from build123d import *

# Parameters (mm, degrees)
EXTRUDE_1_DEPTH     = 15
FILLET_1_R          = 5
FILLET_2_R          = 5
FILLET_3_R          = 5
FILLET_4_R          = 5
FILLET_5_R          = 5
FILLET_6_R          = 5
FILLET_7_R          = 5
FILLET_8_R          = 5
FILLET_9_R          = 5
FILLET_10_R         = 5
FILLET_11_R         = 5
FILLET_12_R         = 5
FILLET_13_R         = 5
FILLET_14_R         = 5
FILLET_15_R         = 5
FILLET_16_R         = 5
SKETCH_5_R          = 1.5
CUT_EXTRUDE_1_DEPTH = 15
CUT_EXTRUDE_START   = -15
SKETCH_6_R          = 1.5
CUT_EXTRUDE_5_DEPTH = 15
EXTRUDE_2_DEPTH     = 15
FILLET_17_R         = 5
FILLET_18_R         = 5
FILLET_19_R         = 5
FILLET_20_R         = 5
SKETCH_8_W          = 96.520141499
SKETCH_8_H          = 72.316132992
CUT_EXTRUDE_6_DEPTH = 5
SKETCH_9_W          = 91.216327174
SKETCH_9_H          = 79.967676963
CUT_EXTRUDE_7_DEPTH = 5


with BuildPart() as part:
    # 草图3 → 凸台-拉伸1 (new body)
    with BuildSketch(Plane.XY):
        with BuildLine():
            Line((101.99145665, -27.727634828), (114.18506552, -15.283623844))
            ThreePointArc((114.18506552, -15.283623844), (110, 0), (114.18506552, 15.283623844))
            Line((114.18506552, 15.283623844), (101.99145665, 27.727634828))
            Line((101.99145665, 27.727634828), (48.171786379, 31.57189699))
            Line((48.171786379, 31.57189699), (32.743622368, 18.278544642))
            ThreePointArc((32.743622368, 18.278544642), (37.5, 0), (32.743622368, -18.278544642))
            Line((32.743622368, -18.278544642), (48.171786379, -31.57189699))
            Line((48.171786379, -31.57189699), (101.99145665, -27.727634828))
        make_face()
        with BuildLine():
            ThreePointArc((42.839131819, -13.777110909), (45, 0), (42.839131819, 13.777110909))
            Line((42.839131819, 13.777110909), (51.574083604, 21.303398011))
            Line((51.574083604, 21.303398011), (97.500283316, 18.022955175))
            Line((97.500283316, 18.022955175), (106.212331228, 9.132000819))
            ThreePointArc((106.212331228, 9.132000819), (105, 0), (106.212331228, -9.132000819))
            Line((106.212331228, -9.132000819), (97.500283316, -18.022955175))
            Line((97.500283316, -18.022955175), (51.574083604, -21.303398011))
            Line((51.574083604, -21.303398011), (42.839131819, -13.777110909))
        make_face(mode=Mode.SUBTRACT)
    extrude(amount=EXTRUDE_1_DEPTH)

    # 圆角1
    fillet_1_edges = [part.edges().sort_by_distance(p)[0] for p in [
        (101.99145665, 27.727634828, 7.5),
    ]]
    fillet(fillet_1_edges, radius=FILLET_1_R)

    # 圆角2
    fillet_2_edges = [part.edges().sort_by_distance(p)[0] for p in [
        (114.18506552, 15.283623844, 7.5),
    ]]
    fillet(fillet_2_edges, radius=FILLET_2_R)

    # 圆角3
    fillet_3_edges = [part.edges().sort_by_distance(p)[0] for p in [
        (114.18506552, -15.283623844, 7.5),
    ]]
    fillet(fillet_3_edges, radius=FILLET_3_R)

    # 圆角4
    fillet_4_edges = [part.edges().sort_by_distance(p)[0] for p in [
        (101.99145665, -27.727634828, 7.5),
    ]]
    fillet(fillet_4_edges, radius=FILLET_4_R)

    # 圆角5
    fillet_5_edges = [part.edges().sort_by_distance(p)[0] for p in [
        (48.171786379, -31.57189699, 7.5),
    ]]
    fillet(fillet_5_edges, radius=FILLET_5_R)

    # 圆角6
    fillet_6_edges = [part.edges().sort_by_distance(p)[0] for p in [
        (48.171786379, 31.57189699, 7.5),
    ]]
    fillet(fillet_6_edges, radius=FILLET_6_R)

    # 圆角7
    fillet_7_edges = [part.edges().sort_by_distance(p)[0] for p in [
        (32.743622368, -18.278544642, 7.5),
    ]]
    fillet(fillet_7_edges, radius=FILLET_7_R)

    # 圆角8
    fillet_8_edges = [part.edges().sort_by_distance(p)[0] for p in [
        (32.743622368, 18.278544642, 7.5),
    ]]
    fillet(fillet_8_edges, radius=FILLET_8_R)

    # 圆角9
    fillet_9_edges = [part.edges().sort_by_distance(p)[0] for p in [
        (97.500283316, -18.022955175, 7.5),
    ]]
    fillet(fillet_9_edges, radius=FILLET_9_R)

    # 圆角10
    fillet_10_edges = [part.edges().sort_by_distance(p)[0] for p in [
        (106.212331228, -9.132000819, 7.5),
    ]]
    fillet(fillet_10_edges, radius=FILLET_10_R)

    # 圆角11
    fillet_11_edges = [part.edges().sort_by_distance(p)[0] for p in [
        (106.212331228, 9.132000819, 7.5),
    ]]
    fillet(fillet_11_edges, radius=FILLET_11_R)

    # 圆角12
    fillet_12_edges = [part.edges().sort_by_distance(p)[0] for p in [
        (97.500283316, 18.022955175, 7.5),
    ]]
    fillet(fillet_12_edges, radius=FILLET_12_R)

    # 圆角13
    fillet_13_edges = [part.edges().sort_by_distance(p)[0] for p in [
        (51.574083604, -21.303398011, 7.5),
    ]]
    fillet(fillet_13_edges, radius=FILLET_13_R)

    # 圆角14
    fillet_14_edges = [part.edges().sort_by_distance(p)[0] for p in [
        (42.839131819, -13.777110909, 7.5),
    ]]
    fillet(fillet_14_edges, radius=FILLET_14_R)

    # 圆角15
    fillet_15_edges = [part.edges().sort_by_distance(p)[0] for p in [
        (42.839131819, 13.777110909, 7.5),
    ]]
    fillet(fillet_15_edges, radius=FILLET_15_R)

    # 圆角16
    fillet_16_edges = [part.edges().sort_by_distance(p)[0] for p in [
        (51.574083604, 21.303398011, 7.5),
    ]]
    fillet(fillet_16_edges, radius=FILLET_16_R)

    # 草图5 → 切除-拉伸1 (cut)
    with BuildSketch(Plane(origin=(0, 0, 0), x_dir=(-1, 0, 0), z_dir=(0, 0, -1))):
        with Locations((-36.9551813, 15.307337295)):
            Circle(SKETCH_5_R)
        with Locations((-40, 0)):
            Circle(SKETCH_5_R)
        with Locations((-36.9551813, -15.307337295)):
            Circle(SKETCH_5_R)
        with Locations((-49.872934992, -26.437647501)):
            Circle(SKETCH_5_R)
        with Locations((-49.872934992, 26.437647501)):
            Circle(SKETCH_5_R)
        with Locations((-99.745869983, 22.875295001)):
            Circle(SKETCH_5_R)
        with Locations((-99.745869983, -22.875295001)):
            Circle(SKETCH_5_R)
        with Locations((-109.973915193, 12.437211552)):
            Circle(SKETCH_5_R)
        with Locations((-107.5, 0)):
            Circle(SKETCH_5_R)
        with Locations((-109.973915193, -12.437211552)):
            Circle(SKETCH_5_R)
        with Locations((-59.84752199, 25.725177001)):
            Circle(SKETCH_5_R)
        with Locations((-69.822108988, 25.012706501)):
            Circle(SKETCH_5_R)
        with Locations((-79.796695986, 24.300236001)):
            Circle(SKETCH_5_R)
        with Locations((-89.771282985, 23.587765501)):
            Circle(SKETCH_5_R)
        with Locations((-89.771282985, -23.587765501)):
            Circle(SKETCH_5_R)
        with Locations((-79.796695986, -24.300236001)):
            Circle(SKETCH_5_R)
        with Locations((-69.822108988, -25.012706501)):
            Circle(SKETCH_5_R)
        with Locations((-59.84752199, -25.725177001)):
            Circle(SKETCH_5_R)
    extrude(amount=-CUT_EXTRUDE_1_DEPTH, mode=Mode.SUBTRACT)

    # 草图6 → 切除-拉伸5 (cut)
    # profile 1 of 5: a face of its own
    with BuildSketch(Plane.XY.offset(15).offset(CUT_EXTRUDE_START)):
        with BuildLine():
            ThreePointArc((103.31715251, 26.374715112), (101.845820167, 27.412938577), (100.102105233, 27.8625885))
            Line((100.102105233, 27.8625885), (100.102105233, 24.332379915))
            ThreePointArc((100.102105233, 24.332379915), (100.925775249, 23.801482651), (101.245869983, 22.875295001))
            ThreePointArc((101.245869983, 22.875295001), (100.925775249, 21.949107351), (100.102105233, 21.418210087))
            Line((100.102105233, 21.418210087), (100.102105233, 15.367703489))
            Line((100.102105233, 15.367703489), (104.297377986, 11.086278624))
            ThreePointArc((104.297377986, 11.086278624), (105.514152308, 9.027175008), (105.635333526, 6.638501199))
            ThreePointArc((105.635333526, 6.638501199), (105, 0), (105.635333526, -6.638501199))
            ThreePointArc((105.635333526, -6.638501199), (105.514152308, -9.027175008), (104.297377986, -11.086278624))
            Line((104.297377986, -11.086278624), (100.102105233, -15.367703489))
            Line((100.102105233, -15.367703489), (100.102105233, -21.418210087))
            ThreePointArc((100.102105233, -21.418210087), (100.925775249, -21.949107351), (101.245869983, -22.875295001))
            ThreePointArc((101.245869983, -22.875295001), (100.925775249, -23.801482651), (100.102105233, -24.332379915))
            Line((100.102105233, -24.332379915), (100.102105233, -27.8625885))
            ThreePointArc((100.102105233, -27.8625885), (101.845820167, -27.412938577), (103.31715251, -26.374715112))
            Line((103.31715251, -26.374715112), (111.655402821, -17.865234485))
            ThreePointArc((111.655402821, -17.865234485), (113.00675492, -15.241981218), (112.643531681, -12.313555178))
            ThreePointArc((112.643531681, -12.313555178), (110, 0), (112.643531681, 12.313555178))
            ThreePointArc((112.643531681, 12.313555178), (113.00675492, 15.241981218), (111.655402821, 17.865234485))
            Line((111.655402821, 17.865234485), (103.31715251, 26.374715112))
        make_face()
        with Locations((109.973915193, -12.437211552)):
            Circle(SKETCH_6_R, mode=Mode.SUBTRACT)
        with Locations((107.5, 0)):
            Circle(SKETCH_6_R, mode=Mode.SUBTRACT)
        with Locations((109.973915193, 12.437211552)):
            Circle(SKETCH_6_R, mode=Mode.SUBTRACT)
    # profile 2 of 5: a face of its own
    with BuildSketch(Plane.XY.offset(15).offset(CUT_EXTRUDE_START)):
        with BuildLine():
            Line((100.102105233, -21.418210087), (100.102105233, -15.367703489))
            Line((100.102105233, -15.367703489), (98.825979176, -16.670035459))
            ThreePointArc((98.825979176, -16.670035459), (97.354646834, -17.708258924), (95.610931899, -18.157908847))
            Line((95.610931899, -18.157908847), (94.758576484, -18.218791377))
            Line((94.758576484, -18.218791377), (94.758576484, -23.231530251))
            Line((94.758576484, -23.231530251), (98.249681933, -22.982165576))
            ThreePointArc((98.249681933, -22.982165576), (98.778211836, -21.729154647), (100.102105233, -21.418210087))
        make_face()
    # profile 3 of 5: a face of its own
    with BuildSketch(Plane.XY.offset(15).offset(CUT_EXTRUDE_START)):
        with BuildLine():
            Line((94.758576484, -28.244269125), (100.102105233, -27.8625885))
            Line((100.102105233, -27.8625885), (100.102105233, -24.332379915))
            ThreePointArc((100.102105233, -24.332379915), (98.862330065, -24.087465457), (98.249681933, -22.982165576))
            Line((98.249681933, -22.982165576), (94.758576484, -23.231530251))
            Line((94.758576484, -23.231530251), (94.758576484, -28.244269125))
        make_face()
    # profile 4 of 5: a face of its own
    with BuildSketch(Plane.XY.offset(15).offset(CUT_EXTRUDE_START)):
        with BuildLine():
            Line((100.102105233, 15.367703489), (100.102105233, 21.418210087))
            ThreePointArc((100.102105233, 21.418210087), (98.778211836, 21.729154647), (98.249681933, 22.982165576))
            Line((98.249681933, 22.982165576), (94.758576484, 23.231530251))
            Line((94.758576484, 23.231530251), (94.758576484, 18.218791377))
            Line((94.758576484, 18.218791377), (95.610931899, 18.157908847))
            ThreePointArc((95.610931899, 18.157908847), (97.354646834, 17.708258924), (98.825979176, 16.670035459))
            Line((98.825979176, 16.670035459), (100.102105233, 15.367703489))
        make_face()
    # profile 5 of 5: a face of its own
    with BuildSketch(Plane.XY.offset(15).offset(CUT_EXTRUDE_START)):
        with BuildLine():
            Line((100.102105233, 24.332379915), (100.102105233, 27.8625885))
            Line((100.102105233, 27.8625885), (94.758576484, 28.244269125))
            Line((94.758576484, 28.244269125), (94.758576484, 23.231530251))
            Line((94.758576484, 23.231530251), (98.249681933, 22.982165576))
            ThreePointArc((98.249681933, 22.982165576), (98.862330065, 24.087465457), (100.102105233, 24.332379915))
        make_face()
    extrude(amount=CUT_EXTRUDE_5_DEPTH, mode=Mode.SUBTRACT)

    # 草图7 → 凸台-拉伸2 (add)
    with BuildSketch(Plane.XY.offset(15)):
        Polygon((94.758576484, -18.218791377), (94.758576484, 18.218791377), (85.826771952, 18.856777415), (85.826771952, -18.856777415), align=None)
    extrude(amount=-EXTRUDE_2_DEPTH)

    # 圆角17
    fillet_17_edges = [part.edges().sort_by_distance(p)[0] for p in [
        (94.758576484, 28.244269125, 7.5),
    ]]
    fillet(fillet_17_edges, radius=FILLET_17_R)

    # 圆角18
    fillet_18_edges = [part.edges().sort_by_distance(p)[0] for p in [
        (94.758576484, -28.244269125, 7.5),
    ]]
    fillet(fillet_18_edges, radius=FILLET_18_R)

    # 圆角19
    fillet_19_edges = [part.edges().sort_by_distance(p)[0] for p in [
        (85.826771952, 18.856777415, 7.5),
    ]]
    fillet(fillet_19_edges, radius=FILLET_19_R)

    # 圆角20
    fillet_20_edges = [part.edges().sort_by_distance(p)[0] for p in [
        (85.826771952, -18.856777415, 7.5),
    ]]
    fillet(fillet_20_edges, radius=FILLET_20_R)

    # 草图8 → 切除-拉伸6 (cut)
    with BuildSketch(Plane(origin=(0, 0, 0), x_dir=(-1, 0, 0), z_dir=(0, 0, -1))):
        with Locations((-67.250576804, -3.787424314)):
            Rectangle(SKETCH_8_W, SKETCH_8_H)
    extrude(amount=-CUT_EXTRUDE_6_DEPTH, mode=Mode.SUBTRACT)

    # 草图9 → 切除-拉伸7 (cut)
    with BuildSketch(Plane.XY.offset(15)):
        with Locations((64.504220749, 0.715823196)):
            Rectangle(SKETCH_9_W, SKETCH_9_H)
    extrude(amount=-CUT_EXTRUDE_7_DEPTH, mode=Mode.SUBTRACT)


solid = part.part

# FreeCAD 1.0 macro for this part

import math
import FreeCAD as App
import Part
import Sketcher


def edges_at(feature, points):
    """Names of the edges that pass closest to the given points."""
    edges = feature.Shape.Edges
    near = lambda p: min(range(len(edges)), key=lambda i: edges[i].distToShape(Part.Vertex(*p))[0])
    return sorted({f"Edge{near(p) + 1}" for p in points})


def add_polygon(sketch, points):
    """Adds a closed chain of lines whose ends are joined by coincident constraints."""
    first, n = sketch.GeometryCount, len(points)
    for a, b in zip(points, points[1:] + points[:1]):
        sketch.addGeometry(Part.LineSegment(App.Vector(*a, 0), App.Vector(*b, 0)), False)
    for i in range(n):
        sketch.addConstraint(Sketcher.Constraint("Coincident", first + i, 2, first + (i + 1) % n, 1))

doc = App.newDocument("Part")
body = doc.addObject("PartDesign::Body", "Body")

# Sketch on XY plane
sketch1 = doc.addObject("Sketcher::SketchObject", "Sketch")
body.addObject(sketch1)
sketch1.AttachmentSupport = (doc.XY_Plane, [""])
sketch1.MapMode = "FlatFace"
sketch1.addGeometry(Part.LineSegment(App.Vector(102, -28, 0), App.Vector(114, -15, 0)), False)
sketch1.addGeometry(Part.ArcOfCircle(Part.Circle(App.Vector(140, 0, 0), App.Vector(0, 0, 1), 30), math.radians(149), math.radians(211)), False)
sketch1.addGeometry(Part.LineSegment(App.Vector(114, 15, 0), App.Vector(102, 28, 0)), False)
sketch1.addGeometry(Part.LineSegment(App.Vector(102, 28, 0), App.Vector(48, 32, 0)), False)
sketch1.addGeometry(Part.LineSegment(App.Vector(48, 32, 0), App.Vector(33, 18, 0)), False)
sketch1.addGeometry(Part.ArcOfCircle(Part.Circle(App.Vector(0, 0, 0), App.Vector(0, 0, 1), 38), math.radians(-29), math.radians(29)), False)
sketch1.addGeometry(Part.LineSegment(App.Vector(33, -18, 0), App.Vector(48, -32, 0)), False)
sketch1.addGeometry(Part.LineSegment(App.Vector(48, -32, 0), App.Vector(102, -28, 0)), False)
sketch1.addGeometry(Part.LineSegment(App.Vector(52, -21, 0), App.Vector(43, -14, 0)), False)
sketch1.addGeometry(Part.ArcOfCircle(Part.Circle(App.Vector(0, 0, 0), App.Vector(0, 0, 1), 45), math.radians(-18), math.radians(18)), False)
sketch1.addGeometry(Part.LineSegment(App.Vector(43, 14, 0), App.Vector(52, 21, 0)), False)
sketch1.addGeometry(Part.LineSegment(App.Vector(52, 21, 0), App.Vector(98, 18, 0)), False)
sketch1.addGeometry(Part.LineSegment(App.Vector(98, 18, 0), App.Vector(106, 9, 0)), False)
sketch1.addGeometry(Part.ArcOfCircle(Part.Circle(App.Vector(140, 0, 0), App.Vector(0, 0, 1), 35), math.radians(165), math.radians(195)), False)
sketch1.addGeometry(Part.LineSegment(App.Vector(106, -9, 0), App.Vector(98, -18, 0)), False)
sketch1.addGeometry(Part.LineSegment(App.Vector(98, -18, 0), App.Vector(52, -21, 0)), False)
sketch1.addConstraint(Sketcher.Constraint("Coincident", 0, 2, 1, 2))
sketch1.addConstraint(Sketcher.Constraint("Coincident", 1, 1, 2, 1))
sketch1.addConstraint(Sketcher.Constraint("Coincident", 2, 2, 3, 1))
sketch1.addConstraint(Sketcher.Constraint("Coincident", 3, 2, 4, 1))
sketch1.addConstraint(Sketcher.Constraint("Coincident", 4, 2, 5, 2))
sketch1.addConstraint(Sketcher.Constraint("Coincident", 5, 1, 6, 1))
sketch1.addConstraint(Sketcher.Constraint("Coincident", 6, 2, 7, 1))
sketch1.addConstraint(Sketcher.Constraint("Coincident", 7, 2, 0, 1))
sketch1.addConstraint(Sketcher.Constraint("Coincident", 8, 2, 9, 1))
sketch1.addConstraint(Sketcher.Constraint("Coincident", 9, 2, 10, 1))
sketch1.addConstraint(Sketcher.Constraint("Coincident", 10, 2, 11, 1))
sketch1.addConstraint(Sketcher.Constraint("Coincident", 11, 2, 12, 1))
sketch1.addConstraint(Sketcher.Constraint("Coincident", 12, 2, 13, 1))
sketch1.addConstraint(Sketcher.Constraint("Coincident", 13, 2, 14, 1))
sketch1.addConstraint(Sketcher.Constraint("Coincident", 14, 2, 15, 1))
sketch1.addConstraint(Sketcher.Constraint("Coincident", 15, 2, 8, 1))
sketch1.addConstraint(Sketcher.Constraint("Coincident", 5, 3, -1, 1))
sketch1.addConstraint(Sketcher.Constraint("Coincident", 9, 3, -1, 1))
sketch1.addConstraint(Sketcher.Constraint("Coincident", 13, 3, 1, 3))
sketch1.addConstraint(Sketcher.Constraint("Symmetric", 0, 2, 1, 1, -1))
sketch1.addConstraint(Sketcher.Constraint("Symmetric", 3, 2, 6, 2, -1))
sketch1.addConstraint(Sketcher.Constraint("Symmetric", 2, 2, 7, 2, -1))
sketch1.addConstraint(Sketcher.Constraint("Symmetric", 11, 2, 14, 2, -1))
sketch1.addConstraint(Sketcher.Constraint("Symmetric", 10, 2, 15, 2, -1))
sketch1.addConstraint(Sketcher.Constraint("Parallel", 6, 8))
sketch1.addConstraint(Sketcher.Constraint("Parallel", 4, 10))
sketch1.addConstraint(Sketcher.Constraint("Parallel", 3, 11))
sketch1.addConstraint(Sketcher.Constraint("Parallel", 2, 12))
sketch1.addConstraint(Sketcher.Constraint("Parallel", 0, 14))
sketch1.addConstraint(Sketcher.Constraint("Vertical", 4, 2, 5, 1))
sketch1.addConstraint(Sketcher.Constraint("Radius", 1, 30.0))
sketch1.addConstraint(Sketcher.Constraint("Radius", 9, 45.0))
sketch1.addConstraint(Sketcher.Constraint("Radius", 13, 35.0))
sketch1.addConstraint(Sketcher.Constraint("Radius", 5, 37.5))
sketch1.addConstraint(Sketcher.Constraint("DistanceX", -1, 1, 1, 3, 140.0))
sketch1.addConstraint(Sketcher.Constraint("DistanceY", -1, 1, 12, 2, 9.132001))
sketch1.addConstraint(Sketcher.Constraint("DistanceY", -1, 1, 10, 2, 21.303398))
sketch1.addConstraint(Sketcher.Constraint("DistanceY", 10, 2, 3, 2, 10.268499))
sketch1.addConstraint(Sketcher.Constraint("DistanceX", 10, 2, 11, 2, 45.9262))
sketch1.addConstraint(Sketcher.Constraint("Distance", 3, 53.956791))
sketch1.addConstraint(Sketcher.Constraint("Distance", 8, 11.530151))
sketch1.addConstraint(Sketcher.Constraint("Distance", 11, 46.043209))
sketch1.addConstraint(Sketcher.Constraint("DistanceX", -1, 1, 8, 2, 42.839132))
sketch1.addConstraint(Sketcher.Constraint("DistanceX", 2, 2, 1, 1, 12.193609))
pad1 = doc.addObject("PartDesign::Pad", "Pad")
body.addObject(pad1)
pad1.Profile = sketch1
pad1.Length = 15
doc.recompute()

fillet = doc.addObject("PartDesign::Fillet", "Fillet")
body.addObject(fillet)
fillet.Base = (pad1, edges_at(pad1, [(101.991, 27.728, 7.5)]))
fillet.Radius = 5
doc.recompute()

fillet2 = doc.addObject("PartDesign::Fillet", "Fillet001")
body.addObject(fillet2)
fillet2.Base = (fillet, edges_at(fillet, [(114.185, 15.284, 7.5)]))
fillet2.Radius = 5
doc.recompute()

fillet3 = doc.addObject("PartDesign::Fillet", "Fillet002")
body.addObject(fillet3)
fillet3.Base = (fillet2, edges_at(fillet2, [(114.185, -15.284, 7.5)]))
fillet3.Radius = 5
doc.recompute()

fillet4 = doc.addObject("PartDesign::Fillet", "Fillet003")
body.addObject(fillet4)
fillet4.Base = (fillet3, edges_at(fillet3, [(101.991, -27.728, 7.5)]))
fillet4.Radius = 5
doc.recompute()

fillet5 = doc.addObject("PartDesign::Fillet", "Fillet004")
body.addObject(fillet5)
fillet5.Base = (fillet4, edges_at(fillet4, [(48.172, -31.572, 7.5)]))
fillet5.Radius = 5
doc.recompute()

fillet6 = doc.addObject("PartDesign::Fillet", "Fillet005")
body.addObject(fillet6)
fillet6.Base = (fillet5, edges_at(fillet5, [(48.172, 31.572, 7.5)]))
fillet6.Radius = 5
doc.recompute()

fillet7 = doc.addObject("PartDesign::Fillet", "Fillet006")
body.addObject(fillet7)
fillet7.Base = (fillet6, edges_at(fillet6, [(32.744, -18.279, 7.5)]))
fillet7.Radius = 5
doc.recompute()

fillet8 = doc.addObject("PartDesign::Fillet", "Fillet007")
body.addObject(fillet8)
fillet8.Base = (fillet7, edges_at(fillet7, [(32.744, 18.279, 7.5)]))
fillet8.Radius = 5
doc.recompute()

fillet9 = doc.addObject("PartDesign::Fillet", "Fillet008")
body.addObject(fillet9)
fillet9.Base = (fillet8, edges_at(fillet8, [(97.5, -18.023, 7.5)]))
fillet9.Radius = 5
doc.recompute()

fillet10 = doc.addObject("PartDesign::Fillet", "Fillet009")
body.addObject(fillet10)
fillet10.Base = (fillet9, edges_at(fillet9, [(106.212, -9.132, 7.5)]))
fillet10.Radius = 5
doc.recompute()

fillet11 = doc.addObject("PartDesign::Fillet", "Fillet010")
body.addObject(fillet11)
fillet11.Base = (fillet10, edges_at(fillet10, [(106.212, 9.132, 7.5)]))
fillet11.Radius = 5
doc.recompute()

fillet12 = doc.addObject("PartDesign::Fillet", "Fillet011")
body.addObject(fillet12)
fillet12.Base = (fillet11, edges_at(fillet11, [(97.5, 18.023, 7.5)]))
fillet12.Radius = 5
doc.recompute()

fillet13 = doc.addObject("PartDesign::Fillet", "Fillet012")
body.addObject(fillet13)
fillet13.Base = (fillet12, edges_at(fillet12, [(51.574, -21.303, 7.5)]))
fillet13.Radius = 5
doc.recompute()

fillet14 = doc.addObject("PartDesign::Fillet", "Fillet013")
body.addObject(fillet14)
fillet14.Base = (fillet13, edges_at(fillet13, [(42.839, -13.777, 7.5)]))
fillet14.Radius = 5
doc.recompute()

fillet15 = doc.addObject("PartDesign::Fillet", "Fillet014")
body.addObject(fillet15)
fillet15.Base = (fillet14, edges_at(fillet14, [(42.839, 13.777, 7.5)]))
fillet15.Radius = 5
doc.recompute()

fillet16 = doc.addObject("PartDesign::Fillet", "Fillet015")
body.addObject(fillet16)
fillet16.Base = (fillet15, edges_at(fillet15, [(51.574, 21.303, 7.5)]))
fillet16.Radius = 5

# Sketch on XY plane
sketch2 = doc.addObject("Sketcher::SketchObject", "Sketch001")
body.addObject(sketch2)
sketch2.AttachmentSupport = (doc.XY_Plane, [""])
sketch2.MapMode = "FlatFace"
sketch2.addGeometry(Part.Circle(App.Vector(37, 15.3, 0), App.Vector(0, 0, 1), 1.5), False)
sketch2.addGeometry(Part.Circle(App.Vector(40, 0, 0), App.Vector(0, 0, 1), 1.5), False)
sketch2.addGeometry(Part.Circle(App.Vector(37, -15.3, 0), App.Vector(0, 0, 1), 1.5), False)
sketch2.addGeometry(Part.Circle(App.Vector(49.9, -26.4, 0), App.Vector(0, 0, 1), 1.5), False)
sketch2.addGeometry(Part.Circle(App.Vector(49.9, 26.4, 0), App.Vector(0, 0, 1), 1.5), False)
sketch2.addGeometry(Part.Circle(App.Vector(99.7, 22.9, 0), App.Vector(0, 0, 1), 1.5), False)
sketch2.addGeometry(Part.Circle(App.Vector(99.7, -22.9, 0), App.Vector(0, 0, 1), 1.5), False)
sketch2.addGeometry(Part.Circle(App.Vector(110, 12.4, 0), App.Vector(0, 0, 1), 1.5), False)
sketch2.addGeometry(Part.Circle(App.Vector(107.5, 0, 0), App.Vector(0, 0, 1), 1.5), False)
sketch2.addGeometry(Part.Circle(App.Vector(110, -12.4, 0), App.Vector(0, 0, 1), 1.5), False)
sketch2.addGeometry(Part.Circle(App.Vector(59.8, 25.7, 0), App.Vector(0, 0, 1), 1.5), False)
sketch2.addGeometry(Part.Circle(App.Vector(69.8, 25, 0), App.Vector(0, 0, 1), 1.5), False)
sketch2.addGeometry(Part.Circle(App.Vector(79.8, 24.3, 0), App.Vector(0, 0, 1), 1.5), False)
sketch2.addGeometry(Part.Circle(App.Vector(89.8, 23.6, 0), App.Vector(0, 0, 1), 1.5), False)
sketch2.addGeometry(Part.Circle(App.Vector(89.8, -23.6, 0), App.Vector(0, 0, 1), 1.5), False)
sketch2.addGeometry(Part.Circle(App.Vector(79.8, -24.3, 0), App.Vector(0, 0, 1), 1.5), False)
sketch2.addGeometry(Part.Circle(App.Vector(69.8, -25, 0), App.Vector(0, 0, 1), 1.5), False)
sketch2.addGeometry(Part.Circle(App.Vector(59.8, -25.7, 0), App.Vector(0, 0, 1), 1.5), False)
sketch2.addConstraint(Sketcher.Constraint("Equal", 0, 1))
sketch2.addConstraint(Sketcher.Constraint("Equal", 1, 2))
sketch2.addConstraint(Sketcher.Constraint("Equal", 2, 3))
sketch2.addConstraint(Sketcher.Constraint("Equal", 3, 4))
sketch2.addConstraint(Sketcher.Constraint("Equal", 4, 5))
sketch2.addConstraint(Sketcher.Constraint("Equal", 5, 6))
sketch2.addConstraint(Sketcher.Constraint("Equal", 6, 7))
sketch2.addConstraint(Sketcher.Constraint("Equal", 7, 8))
sketch2.addConstraint(Sketcher.Constraint("Equal", 8, 9))
sketch2.addConstraint(Sketcher.Constraint("Equal", 9, 10))
sketch2.addConstraint(Sketcher.Constraint("Equal", 10, 11))
sketch2.addConstraint(Sketcher.Constraint("Equal", 11, 12))
sketch2.addConstraint(Sketcher.Constraint("Equal", 12, 13))
sketch2.addConstraint(Sketcher.Constraint("Equal", 13, 14))
sketch2.addConstraint(Sketcher.Constraint("Equal", 14, 15))
sketch2.addConstraint(Sketcher.Constraint("Equal", 15, 16))
sketch2.addConstraint(Sketcher.Constraint("Equal", 16, 17))
sketch2.addConstraint(Sketcher.Constraint("Symmetric", 0, 3, 2, 3, -1))
sketch2.addConstraint(Sketcher.Constraint("Symmetric", 3, 3, 4, 3, -1))
sketch2.addConstraint(Sketcher.Constraint("Symmetric", 5, 3, 6, 3, -1))
sketch2.addConstraint(Sketcher.Constraint("Symmetric", 7, 3, 9, 3, -1))
sketch2.addConstraint(Sketcher.Constraint("Symmetric", 13, 3, 14, 3, -1))
sketch2.addConstraint(Sketcher.Constraint("Symmetric", 12, 3, 15, 3, -1))
sketch2.addConstraint(Sketcher.Constraint("Symmetric", 11, 3, 16, 3, -1))
sketch2.addConstraint(Sketcher.Constraint("Symmetric", 10, 3, 17, 3, -1))
sketch2.addConstraint(Sketcher.Constraint("PointOnObject", 1, 3, -1))
sketch2.addConstraint(Sketcher.Constraint("PointOnObject", 8, 3, -1))
sketch2.addConstraint(Sketcher.Constraint("Diameter", 0, 3.0))
sketch2.addConstraint(Sketcher.Constraint("DistanceX", -1, 1, 1, 3, 40.0))
sketch2.addConstraint(Sketcher.Constraint("DistanceX", -1, 1, 8, 3, 107.5))
sketch2.addConstraint(Sketcher.Constraint("DistanceX", -1, 1, 0, 3, 36.955181))
sketch2.addConstraint(Sketcher.Constraint("DistanceX", -1, 1, 5, 3, 99.74587))
sketch2.addConstraint(Sketcher.Constraint("DistanceY", -1, 1, 7, 3, 12.437212))
sketch2.addConstraint(Sketcher.Constraint("DistanceX", -1, 1, 10, 3, 59.847522))
sketch2.addConstraint(Sketcher.Constraint("DistanceX", -1, 1, 11, 3, 69.822109))
sketch2.addConstraint(Sketcher.Constraint("DistanceY", 3, 3, 2, 3, 11.13031))
sketch2.addConstraint(Sketcher.Constraint("DistanceY", 6, 3, 5, 3, 45.75059))
sketch2.addConstraint(Sketcher.Constraint("DistanceX", 4, 3, 7, 3, 60.10098))
sketch2.addConstraint(Sketcher.Constraint("DistanceY", 3, 3, 7, 3, 38.874859))
sketch2.addConstraint(Sketcher.Constraint("DistanceY", 10, 3, 4, 3, 0.712471))
sketch2.addConstraint(Sketcher.Constraint("DistanceY", 11, 3, 10, 3, 0.71247))
sketch2.addConstraint(Sketcher.Constraint("DistanceY", 12, 3, 11, 3, 0.712471))
sketch2.addConstraint(Sketcher.Constraint("DistanceX", 4, 3, 12, 3, 29.923761))
sketch2.addConstraint(Sketcher.Constraint("DistanceY", 5, 3, 13, 3, 0.71247))
sketch2.addConstraint(Sketcher.Constraint("DistanceX", 17, 3, 14, 3, 29.923761))
sketch2.addConstraint(Sketcher.Constraint("DistanceX", -1, 1, 3, 3, 49.872935))
pocket1 = doc.addObject("PartDesign::Pocket", "Pocket")
body.addObject(pocket1)
pocket1.Profile = sketch2
pocket1.Length = 15
pocket1.Reversed = True

# Sketch on XY plane
sketch3 = doc.addObject("Sketcher::SketchObject", "Sketch002")
body.addObject(sketch3)
sketch3.AttachmentSupport = (doc.XY_Plane, [""])
sketch3.MapMode = "FlatFace"
sketch3.addGeometry(Part.ArcOfCircle(Part.Circle(App.Vector(99.7, 22.9, 0), App.Vector(0, 0, 1), 5), math.radians(44), math.radians(86)), False)
sketch3.addGeometry(Part.LineSegment(App.Vector(100.1, 27.9, 0), App.Vector(94.8, 28.2, 0)), False)
sketch3.addGeometry(Part.LineSegment(App.Vector(94.8, 28.2, 0), App.Vector(94.8, 18.2, 0)), False)
sketch3.addGeometry(Part.LineSegment(App.Vector(94.8, 18.2, 0), App.Vector(95.6, 18.2, 0)), False)
sketch3.addGeometry(Part.ArcOfCircle(Part.Circle(App.Vector(95.3, 13.2, 0), App.Vector(0, 0, 1), 5), math.radians(44), math.radians(86)), False)
sketch3.addGeometry(Part.LineSegment(App.Vector(98.8, 16.7, 0), App.Vector(100.1, 15.4, 0)), False)
sketch3.addGeometry(Part.LineSegment(App.Vector(100.1, 15.4, 0), App.Vector(104.3, 11.1, 0)), False)
sketch3.addGeometry(Part.ArcOfCircle(Part.Circle(App.Vector(100.7, 7.6, 0), App.Vector(0, 0, 1), 5), math.radians(-11), math.radians(44)), False)
sketch3.addGeometry(Part.ArcOfCircle(Part.Circle(App.Vector(140, 0, 0), App.Vector(0, 0, 1), 35), math.radians(169), math.radians(191)), False)
sketch3.addGeometry(Part.ArcOfCircle(Part.Circle(App.Vector(100.7, -7.6, 0), App.Vector(0, 0, 1), 5), math.radians(-44), math.radians(11)), False)
sketch3.addGeometry(Part.LineSegment(App.Vector(104.3, -11.1, 0), App.Vector(100.1, -15.4, 0)), False)
sketch3.addGeometry(Part.LineSegment(App.Vector(100.1, -15.4, 0), App.Vector(98.8, -16.7, 0)), False)
sketch3.addGeometry(Part.ArcOfCircle(Part.Circle(App.Vector(95.3, -13.2, 0), App.Vector(0, 0, 1), 5), math.radians(-86), math.radians(-44)), False)
sketch3.addGeometry(Part.LineSegment(App.Vector(95.6, -18.2, 0), App.Vector(94.8, -18.2, 0)), False)
sketch3.addGeometry(Part.LineSegment(App.Vector(94.8, -18.2, 0), App.Vector(94.8, -28.2, 0)), False)
sketch3.addGeometry(Part.LineSegment(App.Vector(94.8, -28.2, 0), App.Vector(100.1, -27.9, 0)), False)
sketch3.addGeometry(Part.ArcOfCircle(Part.Circle(App.Vector(99.7, -22.9, 0), App.Vector(0, 0, 1), 5), math.radians(-86), math.radians(-44)), False)
sketch3.addGeometry(Part.LineSegment(App.Vector(103.3, -26.4, 0), App.Vector(111.7, -17.9, 0)), False)
sketch3.addGeometry(Part.ArcOfCircle(Part.Circle(App.Vector(108.1, -14.4, 0), App.Vector(0, 0, 1), 5), math.radians(-44), math.radians(24)), False)
sketch3.addGeometry(Part.ArcOfCircle(Part.Circle(App.Vector(140, 0, 0), App.Vector(0, 0, 1), 30), math.radians(156), math.radians(204)), False)
sketch3.addGeometry(Part.ArcOfCircle(Part.Circle(App.Vector(108.1, 14.4, 0), App.Vector(0, 0, 1), 5), math.radians(-24), math.radians(44)), False)
sketch3.addGeometry(Part.LineSegment(App.Vector(111.7, 17.9, 0), App.Vector(103.3, 26.4, 0)), False)
sketch3.addGeometry(Part.ArcOfCircle(Part.Circle(App.Vector(99.7, 22.9, 0), App.Vector(0, 0, 1), 1.5), math.radians(0), math.radians(76)), False)
sketch3.addGeometry(Part.ArcOfCircle(Part.Circle(App.Vector(99.7, 22.9, 0), App.Vector(0, 0, 1), 1.5), math.radians(176), math.radians(360)), False)
sketch3.addGeometry(Part.ArcOfCircle(Part.Circle(App.Vector(99.7, 22.9, 0), App.Vector(0, 0, 1), 1.5), math.radians(76), math.radians(176)), False)
sketch3.addGeometry(Part.ArcOfCircle(Part.Circle(App.Vector(99.7, -22.9, 0), App.Vector(0, 0, 1), 1.5), math.radians(-76), math.radians(0)), False)
sketch3.addGeometry(Part.ArcOfCircle(Part.Circle(App.Vector(99.7, -22.9, 0), App.Vector(0, 0, 1), 1.5), math.radians(-176), math.radians(-76)), False)
sketch3.addGeometry(Part.ArcOfCircle(Part.Circle(App.Vector(99.7, -22.9, 0), App.Vector(0, 0, 1), 1.5), math.radians(0), math.radians(184)), False)
sketch3.addGeometry(Part.Circle(App.Vector(110, -12.4, 0), App.Vector(0, 0, 1), 1.5), False)
sketch3.addGeometry(Part.Circle(App.Vector(107.5, 0, 0), App.Vector(0, 0, 1), 1.5), False)
sketch3.addGeometry(Part.Circle(App.Vector(110, 12.4, 0), App.Vector(0, 0, 1), 1.5), False)
sketch3.addConstraint(Sketcher.Constraint("Tangent", 0, 2, 1, 1))
sketch3.addConstraint(Sketcher.Constraint("Coincident", 1, 2, 2, 1))
sketch3.addConstraint(Sketcher.Constraint("Coincident", 2, 2, 3, 1))
sketch3.addConstraint(Sketcher.Constraint("Tangent", 3, 2, 4, 2))
sketch3.addConstraint(Sketcher.Constraint("Tangent", 4, 1, 5, 1))
sketch3.addConstraint(Sketcher.Constraint("Coincident", 5, 2, 6, 1))
sketch3.addConstraint(Sketcher.Constraint("Tangent", 6, 2, 7, 2))
sketch3.addConstraint(Sketcher.Constraint("Tangent", 7, 1, 8, 1))
sketch3.addConstraint(Sketcher.Constraint("Tangent", 8, 2, 9, 2))
sketch3.addConstraint(Sketcher.Constraint("Tangent", 9, 1, 10, 1))
sketch3.addConstraint(Sketcher.Constraint("Coincident", 10, 2, 11, 1))
sketch3.addConstraint(Sketcher.Constraint("Tangent", 11, 2, 12, 2))
sketch3.addConstraint(Sketcher.Constraint("Tangent", 12, 1, 13, 1))
sketch3.addConstraint(Sketcher.Constraint("Coincident", 13, 2, 14, 1))
sketch3.addConstraint(Sketcher.Constraint("Coincident", 14, 2, 15, 1))
sketch3.addConstraint(Sketcher.Constraint("Tangent", 15, 2, 16, 1))
sketch3.addConstraint(Sketcher.Constraint("Tangent", 16, 2, 17, 1))
sketch3.addConstraint(Sketcher.Constraint("Tangent", 17, 2, 18, 1))
sketch3.addConstraint(Sketcher.Constraint("Tangent", 18, 2, 19, 2))
sketch3.addConstraint(Sketcher.Constraint("Tangent", 19, 1, 20, 1))
sketch3.addConstraint(Sketcher.Constraint("Tangent", 20, 2, 21, 1))
sketch3.addConstraint(Sketcher.Constraint("Tangent", 21, 2, 0, 1))
sketch3.addConstraint(Sketcher.Constraint("Tangent", 22, 1, 23, 2))
sketch3.addConstraint(Sketcher.Constraint("Tangent", 23, 1, 24, 2))
sketch3.addConstraint(Sketcher.Constraint("Tangent", 24, 1, 22, 2))
sketch3.addConstraint(Sketcher.Constraint("Tangent", 25, 1, 26, 2))
sketch3.addConstraint(Sketcher.Constraint("Tangent", 26, 1, 27, 2))
sketch3.addConstraint(Sketcher.Constraint("Tangent", 27, 1, 25, 2))
sketch3.addConstraint(Sketcher.Constraint("Vertical", 2))
sketch3.addConstraint(Sketcher.Constraint("Vertical", 14))
sketch3.addConstraint(Sketcher.Constraint("Coincident", 19, 3, 8, 3))
sketch3.addConstraint(Sketcher.Constraint("Coincident", 22, 3, 0, 3))
sketch3.addConstraint(Sketcher.Constraint("Coincident", 25, 3, 16, 3))
sketch3.addConstraint(Sketcher.Constraint("Equal", 0, 4))
sketch3.addConstraint(Sketcher.Constraint("Equal", 4, 7))
sketch3.addConstraint(Sketcher.Constraint("Equal", 7, 9))
sketch3.addConstraint(Sketcher.Constraint("Equal", 9, 12))
sketch3.addConstraint(Sketcher.Constraint("Equal", 12, 16))
sketch3.addConstraint(Sketcher.Constraint("Equal", 16, 18))
sketch3.addConstraint(Sketcher.Constraint("Equal", 18, 20))
sketch3.addConstraint(Sketcher.Constraint("Equal", 24, 25))
sketch3.addConstraint(Sketcher.Constraint("Equal", 27, 28))
sketch3.addConstraint(Sketcher.Constraint("Equal", 28, 29))
sketch3.addConstraint(Sketcher.Constraint("Equal", 29, 30))
sketch3.addConstraint(Sketcher.Constraint("Symmetric", 7, 3, 9, 3, -1))
sketch3.addConstraint(Sketcher.Constraint("Symmetric", 4, 3, 12, 3, -1))
sketch3.addConstraint(Sketcher.Constraint("Symmetric", 0, 3, 16, 3, -1))
sketch3.addConstraint(Sketcher.Constraint("Symmetric", 28, 3, 30, 3, -1))
sketch3.addConstraint(Sketcher.Constraint("Symmetric", 5, 2, 10, 2, -1))
sketch3.addConstraint(Sketcher.Constraint("Symmetric", 2, 2, 13, 2, -1))
sketch3.addConstraint(Sketcher.Constraint("PointOnObject", 29, 3, -1))
sketch3.addConstraint(Sketcher.Constraint("Parallel", 1, 3))
sketch3.addConstraint(Sketcher.Constraint("Parallel", 5, 6))
sketch3.addConstraint(Sketcher.Constraint("Parallel", 13, 15))
sketch3.addConstraint(Sketcher.Constraint("Parallel", 11, 17))
sketch3.addConstraint(Sketcher.Constraint("Parallel", 6, 21))
sketch3.addConstraint(Sketcher.Constraint("Horizontal", 24, 3, 22, 1))
sketch3.addConstraint(Sketcher.Constraint("Horizontal", 26, 3, 27, 1))
sketch3.addConstraint(Sketcher.Constraint("Vertical", 0, 2, 5, 2))
sketch3.addConstraint(Sketcher.Constraint("Vertical", 15, 2, 24, 1))
sketch3.addConstraint(Sketcher.Constraint("Vertical", 24, 1, 25, 1))
sketch3.addConstraint(Sketcher.Constraint("Vertical", 23, 1, 26, 1))
sketch3.addConstraint(Sketcher.Constraint("Diameter", 28, 3.0))
sketch3.addConstraint(Sketcher.Constraint("Radius", 0, 5.0))
sketch3.addConstraint(Sketcher.Constraint("Radius", 8, 35.0))
sketch3.addConstraint(Sketcher.Constraint("Radius", 19, 30.0))
sketch3.addConstraint(Sketcher.Constraint("DistanceX", -1, 1, 8, 3, 140.0))
sketch3.addConstraint(Sketcher.Constraint("DistanceX", -1, 1, 29, 3, 107.5))
sketch3.addConstraint(Sketcher.Constraint("DistanceY", -1, 1, 7, 1, 6.638501))
sketch3.addConstraint(Sketcher.Constraint("DistanceX", 4, 3, 7, 3, 5.471399))
sketch3.addConstraint(Sketcher.Constraint("DistanceY", 18, 3, 12, 3, 1.195199))
sketch3.addConstraint(Sketcher.Constraint("DistanceX", 8, 2, 18, 2, 7.008198))
sketch3.addConstraint(Sketcher.Constraint("Distance", 5, 1.823339))
sketch3.addConstraint(Sketcher.Constraint("Distance", 17, 11.91376))
sketch3.addConstraint(Sketcher.Constraint("DistanceY", 28, 3, -1, 1, 12.437212))
sketch3.addConstraint(Sketcher.Constraint("DistanceY", -1, 1, 1, 2, 28.244269))
sketch3.addConstraint(Sketcher.Constraint("DistanceX", -1, 1, 23, 1, 98.249682))
sketch3.addConstraint(Sketcher.Constraint("DistanceX", 9, 3, 28, 3, 9.24782))
pocket2 = doc.addObject("PartDesign::Pocket", "Pocket001")
body.addObject(pocket2)
pocket2.Profile = sketch3
pocket2.Length = 15
pocket2.Reversed = True

# Sketch on XY plane
sketch4 = doc.addObject("Sketcher::SketchObject", "Sketch003")
body.addObject(sketch4)
sketch4.AttachmentSupport = (doc.XY_Plane, [""])
sketch4.MapMode = "FlatFace"
sketch4.AttachmentOffset = App.Placement(App.Vector(0, 0, 15), App.Rotation())
add_polygon(sketch4, [(95, -18), (95, 18), (86, 19), (86, -19)])  # lines 0-3
sketch4.addConstraint(Sketcher.Constraint("Vertical", 0))
sketch4.addConstraint(Sketcher.Constraint("Vertical", 2))
sketch4.addConstraint(Sketcher.Constraint("Equal", 1, 3))
sketch4.addConstraint(Sketcher.Constraint("Distance", 1, 8.954561))
sketch4.addConstraint(Sketcher.Constraint("DistanceY", 0, 1, 0, 2, 36.437583))
sketch4.addConstraint(Sketcher.Constraint("DistanceY", 2, 2, 2, 1, 37.713555))
sketch4.addConstraint(Sketcher.Constraint("DistanceY", -1, 1, 0, 2, 18.218791))
sketch4.addConstraint(Sketcher.Constraint("DistanceX", -1, 1, 1, 2, 85.826772))
pad2 = doc.addObject("PartDesign::Pad", "Pad001")
body.addObject(pad2)
pad2.Profile = sketch4
pad2.Length = 15
pad2.Reversed = True
doc.recompute()

fillet17 = doc.addObject("PartDesign::Fillet", "Fillet016")
body.addObject(fillet17)
fillet17.Base = (pad2, edges_at(pad2, [(94.759, 28.244, 7.5)]))
fillet17.Radius = 5
doc.recompute()

fillet18 = doc.addObject("PartDesign::Fillet", "Fillet017")
body.addObject(fillet18)
fillet18.Base = (fillet17, edges_at(fillet17, [(94.759, -28.244, 7.5)]))
fillet18.Radius = 5
doc.recompute()

fillet19 = doc.addObject("PartDesign::Fillet", "Fillet018")
body.addObject(fillet19)
fillet19.Base = (fillet18, edges_at(fillet18, [(85.827, 18.857, 7.5)]))
fillet19.Radius = 5
doc.recompute()

fillet20 = doc.addObject("PartDesign::Fillet", "Fillet019")
body.addObject(fillet20)
fillet20.Base = (fillet19, edges_at(fillet19, [(85.827, -18.857, 7.5)]))
fillet20.Radius = 5

# Sketch on XY plane
sketch5 = doc.addObject("Sketcher::SketchObject", "Sketch004")
body.addObject(sketch5)
sketch5.AttachmentSupport = (doc.XY_Plane, [""])
sketch5.MapMode = "FlatFace"
add_polygon(sketch5, [(116, 32), (116, -40), (19, -40), (19, 32)])  # lines 0-3
sketch5.addConstraint(Sketcher.Constraint("Vertical", 0))
sketch5.addConstraint(Sketcher.Constraint("Horizontal", 1))
sketch5.addConstraint(Sketcher.Constraint("Vertical", 2))
sketch5.addConstraint(Sketcher.Constraint("Horizontal", 3))
sketch5.addConstraint(Sketcher.Constraint("DistanceX", 1, 2, 1, 1, 96.520141))
sketch5.addConstraint(Sketcher.Constraint("DistanceY", 0, 2, 0, 1, 72.316133))
sketch5.addConstraint(Sketcher.Constraint("DistanceY", 0, 2, -1, 1, 39.945491))
sketch5.addConstraint(Sketcher.Constraint("DistanceX", -1, 1, 0, 2, 115.510648))
pocket3 = doc.addObject("PartDesign::Pocket", "Pocket002")
body.addObject(pocket3)
pocket3.Profile = sketch5
pocket3.Length = 5
pocket3.Reversed = True

# Sketch on XY plane
sketch6 = doc.addObject("Sketcher::SketchObject", "Sketch005")
body.addObject(sketch6)
sketch6.AttachmentSupport = (doc.XY_Plane, [""])
sketch6.MapMode = "FlatFace"
sketch6.AttachmentOffset = App.Placement(App.Vector(0, 0, 15), App.Rotation())
add_polygon(sketch6, [(19, 41), (19, -39), (110, -39), (110, 41)])  # lines 0-3
sketch6.addConstraint(Sketcher.Constraint("Vertical", 0))
sketch6.addConstraint(Sketcher.Constraint("Horizontal", 1))
sketch6.addConstraint(Sketcher.Constraint("Vertical", 2))
sketch6.addConstraint(Sketcher.Constraint("Horizontal", 3))
sketch6.addConstraint(Sketcher.Constraint("DistanceX", 1, 1, 1, 2, 91.216327))
sketch6.addConstraint(Sketcher.Constraint("DistanceY", 0, 2, 0, 1, 79.967677))
sketch6.addConstraint(Sketcher.Constraint("DistanceY", -1, 1, 2, 2, 40.699662))
sketch6.addConstraint(Sketcher.Constraint("DistanceX", -1, 1, 0, 2, 18.896057))
pocket4 = doc.addObject("PartDesign::Pocket", "Pocket003")
body.addObject(pocket4)
pocket4.Profile = sketch6
pocket4.Length = 5

doc.recompute()
